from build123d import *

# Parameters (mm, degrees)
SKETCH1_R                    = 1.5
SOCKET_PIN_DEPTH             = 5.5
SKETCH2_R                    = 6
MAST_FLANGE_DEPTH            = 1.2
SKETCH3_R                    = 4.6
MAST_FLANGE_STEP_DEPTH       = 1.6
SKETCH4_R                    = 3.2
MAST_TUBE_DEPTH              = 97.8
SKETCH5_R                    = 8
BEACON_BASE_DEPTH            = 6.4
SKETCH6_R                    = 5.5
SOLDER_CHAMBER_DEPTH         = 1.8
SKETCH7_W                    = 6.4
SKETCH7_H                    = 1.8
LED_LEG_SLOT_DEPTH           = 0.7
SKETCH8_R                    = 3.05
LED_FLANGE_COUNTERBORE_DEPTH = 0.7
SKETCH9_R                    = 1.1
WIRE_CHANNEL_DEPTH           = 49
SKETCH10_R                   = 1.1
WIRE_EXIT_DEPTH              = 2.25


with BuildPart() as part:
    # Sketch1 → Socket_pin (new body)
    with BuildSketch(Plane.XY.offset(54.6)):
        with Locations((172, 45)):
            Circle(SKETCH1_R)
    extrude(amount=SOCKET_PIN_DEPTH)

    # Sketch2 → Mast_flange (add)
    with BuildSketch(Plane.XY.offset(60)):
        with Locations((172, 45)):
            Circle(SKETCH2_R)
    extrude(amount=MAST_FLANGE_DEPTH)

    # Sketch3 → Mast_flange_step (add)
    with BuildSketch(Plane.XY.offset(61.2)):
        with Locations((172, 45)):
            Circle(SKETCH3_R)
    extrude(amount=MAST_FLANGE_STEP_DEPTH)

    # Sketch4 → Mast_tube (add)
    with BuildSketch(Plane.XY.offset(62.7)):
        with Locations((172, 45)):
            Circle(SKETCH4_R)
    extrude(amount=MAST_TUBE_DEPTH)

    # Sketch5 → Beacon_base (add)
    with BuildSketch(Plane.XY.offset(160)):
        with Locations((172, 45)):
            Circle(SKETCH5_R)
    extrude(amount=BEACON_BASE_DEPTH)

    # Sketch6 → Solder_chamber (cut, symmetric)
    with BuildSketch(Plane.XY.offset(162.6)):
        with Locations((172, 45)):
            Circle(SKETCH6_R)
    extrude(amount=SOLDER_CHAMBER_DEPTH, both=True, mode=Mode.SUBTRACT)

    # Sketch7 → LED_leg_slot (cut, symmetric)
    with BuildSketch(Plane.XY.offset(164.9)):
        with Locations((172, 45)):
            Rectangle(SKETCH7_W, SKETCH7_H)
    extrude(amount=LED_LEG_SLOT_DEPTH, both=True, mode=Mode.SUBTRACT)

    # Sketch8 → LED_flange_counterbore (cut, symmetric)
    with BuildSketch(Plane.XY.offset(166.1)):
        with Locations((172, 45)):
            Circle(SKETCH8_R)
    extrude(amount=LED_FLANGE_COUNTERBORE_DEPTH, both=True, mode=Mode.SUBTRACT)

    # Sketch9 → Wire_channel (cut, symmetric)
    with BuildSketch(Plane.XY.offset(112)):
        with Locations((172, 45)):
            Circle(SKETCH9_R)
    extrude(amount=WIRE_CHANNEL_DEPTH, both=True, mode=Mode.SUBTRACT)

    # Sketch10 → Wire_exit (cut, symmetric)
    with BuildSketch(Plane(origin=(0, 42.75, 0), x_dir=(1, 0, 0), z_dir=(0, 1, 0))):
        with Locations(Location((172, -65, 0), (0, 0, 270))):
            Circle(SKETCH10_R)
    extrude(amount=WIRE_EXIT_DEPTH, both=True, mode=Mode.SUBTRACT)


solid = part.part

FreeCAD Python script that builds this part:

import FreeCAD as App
import Part
import Sketcher
from FreeCAD import Vector

doc = App.newDocument("Part")
params = doc.addObject("Spreadsheet::Sheet", "Params")
for row, (alias, value) in enumerate([
    ("sketch1_diameter", "3 mm"),
    ("pad1_length", "5.5 mm"),
    ("sketch2_diameter", "12 mm"),
    ("pad2_length", "1.2 mm"),
    ("sketch3_diameter", "9.2 mm"),
    ("pad3_length", "1.6 mm"),
    ("sketch4_diameter", "6.4 mm"),
    ("pad4_length", "97.8 mm"),
    ("sketch5_diameter", "16 mm"),
    ("pad5_length", "6.4 mm"),
    ("sketch6_diameter", "11 mm"),
    ("pocket1_length", "3.6 mm"),
    ("sketch7_width", "6.4 mm"),
    ("sketch7_height", "1.8 mm"),
    ("pocket2_length", "1.4 mm"),
    ("sketch8_diameter", "6.1 mm"),
    ("pocket3_length", "1.4 mm"),
    ("sketch9_diameter", "2.2 mm"),
    ("pocket4_length", "98 mm"),
    ("sketch10_diameter", "2.2 mm"),
    ("pocket5_length", "4.5 mm"),
], start=1):
    params.set(f"A{row}", alias)
    params.set(f"B{row}", "=" + value)
    params.setAlias(f"B{row}", alias)

body = doc.addObject("PartDesign::Body", "Body")

# Sketch on XY plane
sketch1 = body.newObject("Sketcher::SketchObject", "Sketch")
sketch1.AttachmentSupport = (doc.getObject("XY_Plane"), [""])
sketch1.MapMode = "FlatFace"
sketch1.AttachmentOffset = App.Placement(Vector(0, 0, 54.6), App.Rotation())
sketch1.addGeometry(Part.Circle(Vector(172, 45, 0), Vector(0, 0, 1), 1.5), False)
sketch1.addConstraint(Sketcher.Constraint("Diameter", 0, 3.0))
sketch1.addConstraint(Sketcher.Constraint("DistanceX", -1, 1, 0, 3, 172.0))
sketch1.addConstraint(Sketcher.Constraint("DistanceY", -1, 1, 0, 3, 45.0))
sketch1.setExpression("Constraints[0]", "Params.sketch1_diameter")
pad1 = body.newObject("PartDesign::Pad", "Pad")
pad1.Profile = sketch1
pad1.setExpression("Length", "Params.pad1_length")

# Sketch on XY plane
sketch2 = body.newObject("Sketcher::SketchObject", "Sketch001")
sketch2.AttachmentSupport = (doc.getObject("XY_Plane"), [""])
sketch2.MapMode = "FlatFace"
sketch2.AttachmentOffset = App.Placement(Vector(0, 0, 60), App.Rotation())
sketch2.addGeometry(Part.Circle(Vector(172, 45, 0), Vector(0, 0, 1), 6), False)
sketch2.addConstraint(Sketcher.Constraint("Diameter", 0, 12.0))
sketch2.addConstraint(Sketcher.Constraint("DistanceX", -1, 1, 0, 3, 172.0))
sketch2.addConstraint(Sketcher.Constraint("DistanceY", -1, 1, 0, 3, 45.0))
sketch2.setExpression("Constraints[0]", "Params.sketch2_diameter")
pad2 = body.newObject("PartDesign::Pad", "Pad001")
pad2.Profile = sketch2
pad2.setExpression("Length", "Params.pad2_length")

# Sketch on XY plane
sketch3 = body.newObject("Sketcher::SketchObject", "Sketch002")
sketch3.AttachmentSupport = (doc.getObject("XY_Plane"), [""])
sketch3.MapMode = "FlatFace"
sketch3.AttachmentOffset = App.Placement(Vector(0, 0, 61.2), App.Rotation())
sketch3.addGeometry(Part.Circle(Vector(172, 45, 0), Vector(0, 0, 1), 4.6), False)
sketch3.addConstraint(Sketcher.Constraint("Diameter", 0, 9.2))
sketch3.addConstraint(Sketcher.Constraint("DistanceX", -1, 1, 0, 3, 172.0))
sketch3.addConstraint(Sketcher.Constraint("DistanceY", -1, 1, 0, 3, 45.0))
sketch3.setExpression("Constraints[0]", "Params.sketch3_diameter")
pad3 = body.newObject("PartDesign::Pad", "Pad002")
pad3.Profile = sketch3
pad3.setExpression("Length", "Params.pad3_length")

# Sketch on XY plane
sketch4 = body.newObject("Sketcher::SketchObject", "Sketch003")
sketch4.AttachmentSupport = (doc.getObject("XY_Plane"), [""])
sketch4.MapMode = "FlatFace"
sketch4.AttachmentOffset = App.Placement(Vector(0, 0, 62.7), App.Rotation())
sketch4.addGeometry(Part.Circle(Vector(172, 45, 0), Vector(0, 0, 1), 3.2), False)
sketch4.addConstraint(Sketcher.Constraint("Diameter", 0, 6.4))
sketch4.addConstraint(Sketcher.Constraint("DistanceX", -1, 1, 0, 3, 172.0))
sketch4.addConstraint(Sketcher.Constraint("DistanceY", -1, 1, 0, 3, 45.0))
sketch4.setExpression("Constraints[0]", "Params.sketch4_diameter")
pad4 = body.newObject("PartDesign::Pad", "Pad003")
pad4.Profile = sketch4
pad4.setExpression("Length", "Params.pad4_length")

# Sketch on XY plane
sketch5 = body.newObject("Sketcher::SketchObject", "Sketch004")
sketch5.AttachmentSupport = (doc.getObject("XY_Plane"), [""])
sketch5.MapMode = "FlatFace"
sketch5.AttachmentOffset = App.Placement(Vector(0, 0, 160), App.Rotation())
sketch5.addGeometry(Part.Circle(Vector(172, 45, 0), Vector(0, 0, 1), 8), False)
sketch5.addConstraint(Sketcher.Constraint("Diameter", 0, 16.0))
sketch5.addConstraint(Sketcher.Constraint("DistanceX", -1, 1, 0, 3, 172.0))
sketch5.addConstraint(Sketcher.Constraint("DistanceY", -1, 1, 0, 3, 45.0))
sketch5.setExpression("Constraints[0]", "Params.sketch5_diameter")
pad5 = body.newObject("PartDesign::Pad", "Pad004")
pad5.Profile = sketch5
pad5.setExpression("Length", "Params.pad5_length")

# Sketch on XY plane
sketch6 = body.newObject("Sketcher::SketchObject", "Sketch005")
sketch6.AttachmentSupport = (doc.getObject("XY_Plane"), [""])
sketch6.MapMode = "FlatFace"
sketch6.AttachmentOffset = App.Placement(Vector(0, 0, 162.6), App.Rotation())
sketch6.addGeometry(Part.Circle(Vector(172, 45, 0), Vector(0, 0, 1), 6), False)
sketch6.addConstraint(Sketcher.Constraint("Diameter", 0, 11.0))
sketch6.addConstraint(Sketcher.Constraint("DistanceX", -1, 1, 0, 3, 172.0))
sketch6.addConstraint(Sketcher.Constraint("DistanceY", -1, 1, 0, 3, 45.0))
sketch6.setExpression("Constraints[0]", "Params.sketch6_diameter")
pocket1 = body.newObject("PartDesign::Pocket", "Pocket")
pocket1.Profile = sketch6
pocket1.setExpression("Length", "Params.pocket1_length")
pocket1.Midplane = True

# Sketch on XY plane
sketch7 = body.newObject("Sketcher::SketchObject", "Sketch006")
sketch7.AttachmentSupport = (doc.getObject("XY_Plane"), [""])
sketch7.MapMode = "FlatFace"
sketch7.AttachmentOffset = App.Placement(Vector(0, 0, 164.9), App.Rotation())
sketch7.addGeometry(Part.LineSegment(Vector(168.8, 45.9, 0), Vector(168.8, 44.1, 0)), False)
sketch7.addGeometry(Part.LineSegment(Vector(168.8, 44.1, 0), Vector(175.2, 44.1, 0)), False)
sketch7.addGeometry(Part.LineSegment(Vector(175.2, 44.1, 0), Vector(175.2, 45.9, 0)), False)
sketch7.addGeometry(Part.LineSegment(Vector(175.2, 45.9, 0), Vector(168.8, 45.9, 0)), False)
sketch7.addConstraint(Sketcher.Constraint("Coincident", 0, 2, 1, 1))
sketch7.addConstraint(Sketcher.Constraint("Coincident", 1, 2, 2, 1))
sketch7.addConstraint(Sketcher.Constraint("Coincident", 2, 2, 3, 1))
sketch7.addConstraint(Sketcher.Constraint("Coincident", 3, 2, 0, 1))
sketch7.addConstraint(Sketcher.Constraint("Vertical", 0))
sketch7.addConstraint(Sketcher.Constraint("Horizontal", 1))
sketch7.addConstraint(Sketcher.Constraint("Vertical", 2))
sketch7.addConstraint(Sketcher.Constraint("Horizontal", 3))
sketch7.addConstraint(Sketcher.Constraint("DistanceX", 1, 1, 1, 2, 6.4))
sketch7.addConstraint(Sketcher.Constraint("DistanceY", 0, 2, 0, 1, 1.8))
sketch7.addConstraint(Sketcher.Constraint("DistanceX", -1, 1, 0, 2, 168.8))
sketch7.addConstraint(Sketcher.Constraint("DistanceY", -1, 1, 0, 2, 44.1))
sketch7.setExpression("Constraints[8]", "Params.sketch7_width")
sketch7.setExpression("Constraints[9]", "Params.sketch7_height")
pocket2 = body.newObject("PartDesign::Pocket", "Pocket001")
pocket2.Profile = sketch7
pocket2.setExpression("Length", "Params.pocket2_length")
pocket2.Midplane = True

# Sketch on XY plane
sketch8 = body.newObject("Sketcher::SketchObject", "Sketch007")
sketch8.AttachmentSupport = (doc.getObject("XY_Plane"), [""])
sketch8.MapMode = "FlatFace"
sketch8.AttachmentOffset = App.Placement(Vector(0, 0, 166.1), App.Rotation())
sketch8.addGeometry(Part.Circle(Vector(172, 45, 0), Vector(0, 0, 1), 3), False)
sketch8.addConstraint(Sketcher.Constraint("Diameter", 0, 6.1))
sketch8.addConstraint(Sketcher.Constraint("DistanceX", -1, 1, 0, 3, 172.0))
sketch8.addConstraint(Sketcher.Constraint("DistanceY", -1, 1, 0, 3, 45.0))
sketch8.setExpression("Constraints[0]", "Params.sketch8_diameter")
pocket3 = body.newObject("PartDesign::Pocket", "Pocket002")
pocket3.Profile = sketch8
pocket3.setExpression("Length", "Params.pocket3_length")
pocket3.Midplane = True

# Sketch on XY plane
sketch9 = body.newObject("Sketcher::SketchObject", "Sketch008")
sketch9.AttachmentSupport = (doc.getObject("XY_Plane"), [""])
sketch9.MapMode = "FlatFace"
sketch9.AttachmentOffset = App.Placement(Vector(0, 0, 112), App.Rotation())
sketch9.addGeometry(Part.Circle(Vector(172, 45, 0), Vector(0, 0, 1), 1.1), False)
sketch9.addConstraint(Sketcher.Constraint("Diameter", 0, 2.2))
sketch9.addConstraint(Sketcher.Constraint("DistanceX", -1, 1, 0, 3, 172.0))
sketch9.addConstraint(Sketcher.Constraint("DistanceY", -1, 1, 0, 3, 45.0))
sketch9.setExpression("Constraints[0]", "Params.sketch9_diameter")
pocket4 = body.newObject("PartDesign::Pocket", "Pocket003")
pocket4.Profile = sketch9
pocket4.setExpression("Length", "Params.pocket4_length")
pocket4.Midplane = True

# Sketch on XZ plane
sketch10 = body.newObject("Sketcher::SketchObject", "Sketch009")
sketch10.AttachmentSupport = (doc.getObject("XZ_Plane"), [""])
sketch10.MapMode = "FlatFace"
sketch10.AttachmentOffset = App.Placement(Vector(0, 0, -42.75), App.Rotation())
sketch10.addGeometry(Part.Circle(Vector(172, 65, 0), Vector(0, 0, 1), 1.1), False)
sketch10.addConstraint(Sketcher.Constraint("Diameter", 0, 2.2))
sketch10.addConstraint(Sketcher.Constraint("DistanceX", -1, 1, 0, 3, 172.0))
sketch10.addConstraint(Sketcher.Constraint("DistanceY", -1, 1, 0, 3, 65.0))
sketch10.setExpression("Constraints[0]", "Params.sketch10_diameter")
pocket5 = body.newObject("PartDesign::Pocket", "Pocket004")
pocket5.Profile = sketch10
pocket5.setExpression("Length", "Params.pocket5_length")
pocket5.Midplane = True

doc.recompute()
